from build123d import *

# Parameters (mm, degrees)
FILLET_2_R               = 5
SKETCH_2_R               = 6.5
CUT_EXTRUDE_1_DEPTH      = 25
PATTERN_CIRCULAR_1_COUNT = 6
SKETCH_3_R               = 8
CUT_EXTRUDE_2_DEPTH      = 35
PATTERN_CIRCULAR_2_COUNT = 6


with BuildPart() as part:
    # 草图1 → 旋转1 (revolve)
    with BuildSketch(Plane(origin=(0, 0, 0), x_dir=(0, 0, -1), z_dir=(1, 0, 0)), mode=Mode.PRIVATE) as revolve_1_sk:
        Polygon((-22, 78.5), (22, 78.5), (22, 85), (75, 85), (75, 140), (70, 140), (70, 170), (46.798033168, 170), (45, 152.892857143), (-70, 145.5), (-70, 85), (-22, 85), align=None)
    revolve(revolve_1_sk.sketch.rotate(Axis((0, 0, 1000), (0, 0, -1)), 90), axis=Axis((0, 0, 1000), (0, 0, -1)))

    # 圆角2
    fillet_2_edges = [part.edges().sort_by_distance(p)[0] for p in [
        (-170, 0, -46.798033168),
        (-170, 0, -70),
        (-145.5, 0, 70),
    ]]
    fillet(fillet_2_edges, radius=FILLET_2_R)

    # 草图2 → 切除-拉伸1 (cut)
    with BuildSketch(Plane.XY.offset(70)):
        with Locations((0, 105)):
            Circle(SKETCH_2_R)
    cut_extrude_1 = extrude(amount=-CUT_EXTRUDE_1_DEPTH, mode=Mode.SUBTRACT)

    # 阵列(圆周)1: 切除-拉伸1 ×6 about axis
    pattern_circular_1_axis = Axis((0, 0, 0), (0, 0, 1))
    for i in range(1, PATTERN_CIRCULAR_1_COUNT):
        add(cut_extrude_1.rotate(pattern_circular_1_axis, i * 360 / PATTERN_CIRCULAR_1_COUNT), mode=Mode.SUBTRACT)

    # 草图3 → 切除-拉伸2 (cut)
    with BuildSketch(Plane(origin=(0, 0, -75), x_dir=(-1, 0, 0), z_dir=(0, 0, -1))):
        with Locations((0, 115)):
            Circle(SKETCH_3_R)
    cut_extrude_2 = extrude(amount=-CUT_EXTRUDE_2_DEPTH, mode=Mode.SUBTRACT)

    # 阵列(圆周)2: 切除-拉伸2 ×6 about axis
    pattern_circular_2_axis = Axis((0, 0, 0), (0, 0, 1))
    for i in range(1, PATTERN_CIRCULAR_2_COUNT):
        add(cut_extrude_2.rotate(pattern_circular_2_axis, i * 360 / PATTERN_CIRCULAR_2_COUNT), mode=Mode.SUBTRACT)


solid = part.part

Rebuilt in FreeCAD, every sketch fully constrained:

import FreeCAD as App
import Part
import Sketcher

V = App.Vector
Q = App.Units.Quantity


def edges_at(feature, points):
    """Names of the edges that pass closest to the given points."""
    edges = feature.Shape.Edges
    near = lambda p: min(range(len(edges)), key=lambda i: edges[i].distToShape(Part.Vertex(*p))[0])
    return sorted({f"Edge{near(p) + 1}" for p in points})


def add_polygon(sketch, points):
    """Adds a closed chain of lines whose ends are joined by coincident constraints."""
    first, n = sketch.GeometryCount, len(points)
    for a, b in zip(points, points[1:] + points[:1]):
        sketch.addGeometry(Part.LineSegment(App.Vector(*a, 0), App.Vector(*b, 0)), False)
    for i in range(n):
        sketch.addConstraint(Sketcher.Constraint("Coincident", first + i, 2, first + (i + 1) % n, 1))

doc = App.newDocument("Part")
body = doc.addObject("PartDesign::Body", "Body")

sketch1 = body.newObject("Sketcher::SketchObject", "Sketch")
sketch1.AttachmentSupport = (doc.getObject("YZ_Plane"), [""])
sketch1.MapMode = "FlatFace"
add_polygon(sketch1, [(78, 22), (78, -22), (85, -22), (85, -75), (140, -75), (140, -70), (170, -70), (170, -47), (153, -45), (146, 70), (85, 70), (85, 22)])
sketch1.addConstraint(Sketcher.Constraint("Vertical", 0))
sketch1.addConstraint(Sketcher.Constraint("Horizontal", 1))
sketch1.addConstraint(Sketcher.Constraint("Vertical", 2))
sketch1.addConstraint(Sketcher.Constraint("Horizontal", 3))
sketch1.addConstraint(Sketcher.Constraint("Vertical", 4))
sketch1.addConstraint(Sketcher.Constraint("Horizontal", 5))
sketch1.addConstraint(Sketcher.Constraint("Vertical", 6))
sketch1.addConstraint(Sketcher.Constraint("Horizontal", 9))
sketch1.addConstraint(Sketcher.Constraint("Vertical", 10))
sketch1.addConstraint(Sketcher.Constraint("Horizontal", 11))
sketch1.addConstraint(Sketcher.Constraint("Symmetric", 1, 2, 10, 2, -1))
sketch1.addConstraint(Sketcher.Constraint("DistanceX", 3, 1, 3, 2, 55.0))
sketch1.addConstraint(Sketcher.Constraint("DistanceX", 5, 1, 5, 2, 30.0))
sketch1.addConstraint(Sketcher.Constraint("DistanceY", 0, 2, 0, 1, 44.0))
sketch1.addConstraint(Sketcher.Constraint("DistanceY", 2, 2, 2, 1, 53.0))
sketch1.addConstraint(Sketcher.Constraint("DistanceY", 4, 1, 4, 2, 5.0))
sketch1.addConstraint(Sketcher.Constraint("DistanceY", 10, 2, 10, 1, 48.0))
sketch1.addConstraint(Sketcher.Constraint("Angle", 7, Q("174 deg")))
sketch1.addConstraint(Sketcher.Constraint("DistanceX", 1, 1, 1, 2, 6.5))
sketch1.addConstraint(Sketcher.Constraint("DistanceX", 9, 2, 9, 1, 60.5))
sketch1.addConstraint(Sketcher.Constraint("DistanceX", -1, 1, 1, 2, 85.0))
sketch1.addConstraint(Sketcher.Constraint("DistanceY", 7, 2, -1, 1, 45.0))
sketch1.addConstraint(Sketcher.Constraint("DistanceY", 6, 1, 6, 2, 23.201967))
revolution = body.newObject("PartDesign::Revolution", "Revolution")
revolution.Profile = sketch1
revolution.ReferenceAxis = (sketch1, ["V_Axis"])
revolution.Angle = 360
doc.recompute()

fillet = body.newObject("PartDesign::Fillet", "Fillet")
fillet.Base = (revolution, edges_at(revolution, [(-170, 0, -46.798), (-170, 0, -70), (-145.5, 0, 70)]))
fillet.Radius = 5

sketch2 = body.newObject("Sketcher::SketchObject", "Sketch001")
sketch2.AttachmentSupport = (doc.getObject("XY_Plane"), [""])
sketch2.MapMode = "FlatFace"
sketch2.AttachmentOffset = App.Placement(V(0, 0, 70), App.Rotation())
sketch2.addGeometry(Part.Circle(V(0, 105, 0), V(0, 0, 1), 6), False)
sketch2.addConstraint(Sketcher.Constraint("PointOnObject", 0, 3, -2))
sketch2.addConstraint(Sketcher.Constraint("Diameter", 0, 13.0))
sketch2.addConstraint(Sketcher.Constraint("DistanceY", -1, 1, 0, 3, 105.0))
pocket1 = body.newObject("PartDesign::Pocket", "Pocket")
pocket1.Profile = sketch2
pocket1.Length = 25
doc.recompute()

polarpattern = body.newObject("PartDesign::PolarPattern", "PolarPattern")
polarpattern.Originals = [pocket1]
polarpattern.Axis = (doc.getObject("Z_Axis"), [""])
polarpattern.Angle = 360
polarpattern.Occurrences = 6
body.Tip = polarpattern

sketch3 = body.newObject("Sketcher::SketchObject", "Sketch002")
sketch3.AttachmentSupport = (doc.getObject("XY_Plane"), [""])
sketch3.MapMode = "FlatFace"
sketch3.AttachmentOffset = App.Placement(V(0, 0, -75), App.Rotation())
sketch3.addGeometry(Part.Circle(V(0, 115, 0), V(0, 0, 1), 8), False)
sketch3.addConstraint(Sketcher.Constraint("PointOnObject", 0, 3, -2))
sketch3.addConstraint(Sketcher.Constraint("Diameter", 0, 16.0))
sketch3.addConstraint(Sketcher.Constraint("DistanceY", -1, 1, 0, 3, 115.0))
pocket2 = body.newObject("PartDesign::Pocket", "Pocket001")
pocket2.Profile = sketch3
pocket2.Length = 35
pocket2.Reversed = True
doc.recompute()

polarpattern2 = body.newObject("PartDesign::PolarPattern", "PolarPattern001")
polarpattern2.Originals = [pocket2]
polarpattern2.Axis = (doc.getObject("Z_Axis"), [""])
polarpattern2.Angle = 360
polarpattern2.Occurrences = 6
body.Tip = polarpattern2

doc.recompute()
